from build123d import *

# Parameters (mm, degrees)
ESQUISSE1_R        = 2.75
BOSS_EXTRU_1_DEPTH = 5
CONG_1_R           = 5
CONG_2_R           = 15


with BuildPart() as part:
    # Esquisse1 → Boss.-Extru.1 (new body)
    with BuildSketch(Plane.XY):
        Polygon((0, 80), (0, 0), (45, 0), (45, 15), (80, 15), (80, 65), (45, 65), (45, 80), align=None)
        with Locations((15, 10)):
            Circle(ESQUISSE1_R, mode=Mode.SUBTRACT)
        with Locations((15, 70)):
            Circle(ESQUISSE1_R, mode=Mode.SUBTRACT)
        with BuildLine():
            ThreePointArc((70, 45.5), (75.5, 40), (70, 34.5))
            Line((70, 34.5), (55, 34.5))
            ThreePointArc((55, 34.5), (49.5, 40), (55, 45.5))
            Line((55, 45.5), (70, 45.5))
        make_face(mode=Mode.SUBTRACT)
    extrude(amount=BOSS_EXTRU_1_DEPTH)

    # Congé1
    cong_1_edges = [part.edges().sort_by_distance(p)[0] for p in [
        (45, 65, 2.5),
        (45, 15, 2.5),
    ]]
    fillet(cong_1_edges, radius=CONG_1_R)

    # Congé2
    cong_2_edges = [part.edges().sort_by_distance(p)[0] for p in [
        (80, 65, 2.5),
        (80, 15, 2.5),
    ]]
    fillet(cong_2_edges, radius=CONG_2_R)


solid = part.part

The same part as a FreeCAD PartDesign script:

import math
import FreeCAD as App
import Part
import Sketcher
from FreeCAD import Vector


def edges_at(feature, points):
    """Names of the edges that pass closest to the given points."""
    edges = feature.Shape.Edges
    near = lambda p: min(range(len(edges)), key=lambda i: edges[i].distToShape(Part.Vertex(*p))[0])
    return sorted({f"Edge{near(p) + 1}" for p in points})

doc = App.newDocument("Part")
body = doc.addObject("PartDesign::Body", "Body")

sketch1 = body.newObject("Sketcher::SketchObject", "Sketch")
sketch1.AttachmentSupport = (doc.getObject("XY_Plane"), [""])
sketch1.MapMode = "FlatFace"
sketch1.addGeometry(Part.LineSegment(Vector(0, 80, 0), Vector(0, 0, 0)), False)
sketch1.addGeometry(Part.LineSegment(Vector(0, 0, 0), Vector(45, 0, 0)), False)
sketch1.addGeometry(Part.LineSegment(Vector(45, 0, 0), Vector(45, 15, 0)), False)
sketch1.addGeometry(Part.LineSegment(Vector(45, 15, 0), Vector(80, 15, 0)), False)
sketch1.addGeometry(Part.LineSegment(Vector(80, 15, 0), Vector(80, 65, 0)), False)
sketch1.addGeometry(Part.LineSegment(Vector(80, 65, 0), Vector(45, 65, 0)), False)
sketch1.addGeometry(Part.LineSegment(Vector(45, 65, 0), Vector(45, 80, 0)), False)
sketch1.addGeometry(Part.LineSegment(Vector(45, 80, 0), Vector(0, 80, 0)), False)
sketch1.addGeometry(Part.Circle(Vector(15, 10, 0), Vector(0, 0, 1), 2.8), False)
sketch1.addGeometry(Part.Circle(Vector(15, 70, 0), Vector(0, 0, 1), 2.8), False)
sketch1.addGeometry(Part.LineSegment(Vector(55, 45.5, 0), Vector(70, 45.5, 0)), False)
sketch1.addGeometry(Part.ArcOfCircle(Part.Circle(Vector(70, 40, 0), Vector(0, 0, 1), 5.5), math.radians(-90), math.radians(90)), False)
sketch1.addGeometry(Part.LineSegment(Vector(70, 34.5, 0), Vector(55, 34.5, 0)), False)
sketch1.addGeometry(Part.ArcOfCircle(Part.Circle(Vector(55, 40, 0), Vector(0, 0, 1), 5.5), math.radians(90), math.radians(270)), False)
sketch1.addConstraint(Sketcher.Constraint("Coincident", 0, 2, 1, 1))
sketch1.addConstraint(Sketcher.Constraint("Coincident", 1, 2, 2, 1))
sketch1.addConstraint(Sketcher.Constraint("Coincident", 2, 2, 3, 1))
sketch1.addConstraint(Sketcher.Constraint("Coincident", 3, 2, 4, 1))
sketch1.addConstraint(Sketcher.Constraint("Coincident", 4, 2, 5, 1))
sketch1.addConstraint(Sketcher.Constraint("Coincident", 5, 2, 6, 1))
sketch1.addConstraint(Sketcher.Constraint("Coincident", 6, 2, 7, 1))
sketch1.addConstraint(Sketcher.Constraint("Coincident", 7, 2, 0, 1))
sketch1.addConstraint(Sketcher.Constraint("Tangent", 10, 2, 11, 2))
sketch1.addConstraint(Sketcher.Constraint("Tangent", 11, 1, 12, 1))
sketch1.addConstraint(Sketcher.Constraint("Tangent", 12, 2, 13, 2))
sketch1.addConstraint(Sketcher.Constraint("Tangent", 13, 1, 10, 1))
sketch1.addConstraint(Sketcher.Constraint("Vertical", 0))
sketch1.addConstraint(Sketcher.Constraint("Horizontal", 1))
sketch1.addConstraint(Sketcher.Constraint("Vertical", 2))
sketch1.addConstraint(Sketcher.Constraint("Horizontal", 3))
sketch1.addConstraint(Sketcher.Constraint("Vertical", 4))
sketch1.addConstraint(Sketcher.Constraint("Horizontal", 5))
sketch1.addConstraint(Sketcher.Constraint("Vertical", 6))
sketch1.addConstraint(Sketcher.Constraint("Horizontal", 7))
sketch1.addConstraint(Sketcher.Constraint("Horizontal", 10))
sketch1.addConstraint(Sketcher.Constraint("Horizontal", 12))
sketch1.addConstraint(Sketcher.Constraint("Coincident", 0, 2, -1, 1))
sketch1.addConstraint(Sketcher.Constraint("Equal", 8, 9))
sketch1.addConstraint(Sketcher.Constraint("Vertical", 8, 3, 9, 3))
sketch1.addConstraint(Sketcher.Constraint("Vertical", 2, 2, 5, 2))
sketch1.addConstraint(Sketcher.Constraint("Equal", 12, 2))
sketch1.addConstraint(Sketcher.Constraint("Equal", 2, 6))
sketch1.addConstraint(Sketcher.Constraint("Diameter", 8, 5.5))
sketch1.addConstraint(Sketcher.Constraint("Radius", 11, 5.5))
sketch1.addConstraint(Sketcher.Constraint("DistanceX", 1, 1, 1, 2, 45.0))
sketch1.addConstraint(Sketcher.Constraint("DistanceX", 3, 1, 3, 2, 35.0))
sketch1.addConstraint(Sketcher.Constraint("DistanceX", 10, 1, 10, 2, 15.0))
sketch1.addConstraint(Sketcher.Constraint("DistanceY", 0, 2, 0, 1, 80.0))
sketch1.addConstraint(Sketcher.Constraint("DistanceX", -1, 1, 8, 3, 15.0))
sketch1.addConstraint(Sketcher.Constraint("DistanceY", -1, 1, 8, 3, 10.0))
sketch1.addConstraint(Sketcher.Constraint("DistanceY", -1, 1, 9, 3, 70.0))
sketch1.addConstraint(Sketcher.Constraint("DistanceX", -1, 1, 11, 3, 70.0))
sketch1.addConstraint(Sketcher.Constraint("DistanceY", -1, 1, 11, 3, 40.0))
pad1 = body.newObject("PartDesign::Pad", "Pad")
pad1.Profile = sketch1
pad1.Length = 5
doc.recompute()

fillet = body.newObject("PartDesign::Fillet", "Fillet")
fillet.Base = (pad1, edges_at(pad1, [(45, 65, 2.5), (45, 15, 2.5)]))
fillet.Radius = 5
doc.recompute()

fillet2 = body.newObject("PartDesign::Fillet", "Fillet001")
fillet2.Base = (fillet, edges_at(fillet, [(80, 65, 2.5), (80, 15, 2.5)]))
fillet2.Radius = 15

doc.recompute()
